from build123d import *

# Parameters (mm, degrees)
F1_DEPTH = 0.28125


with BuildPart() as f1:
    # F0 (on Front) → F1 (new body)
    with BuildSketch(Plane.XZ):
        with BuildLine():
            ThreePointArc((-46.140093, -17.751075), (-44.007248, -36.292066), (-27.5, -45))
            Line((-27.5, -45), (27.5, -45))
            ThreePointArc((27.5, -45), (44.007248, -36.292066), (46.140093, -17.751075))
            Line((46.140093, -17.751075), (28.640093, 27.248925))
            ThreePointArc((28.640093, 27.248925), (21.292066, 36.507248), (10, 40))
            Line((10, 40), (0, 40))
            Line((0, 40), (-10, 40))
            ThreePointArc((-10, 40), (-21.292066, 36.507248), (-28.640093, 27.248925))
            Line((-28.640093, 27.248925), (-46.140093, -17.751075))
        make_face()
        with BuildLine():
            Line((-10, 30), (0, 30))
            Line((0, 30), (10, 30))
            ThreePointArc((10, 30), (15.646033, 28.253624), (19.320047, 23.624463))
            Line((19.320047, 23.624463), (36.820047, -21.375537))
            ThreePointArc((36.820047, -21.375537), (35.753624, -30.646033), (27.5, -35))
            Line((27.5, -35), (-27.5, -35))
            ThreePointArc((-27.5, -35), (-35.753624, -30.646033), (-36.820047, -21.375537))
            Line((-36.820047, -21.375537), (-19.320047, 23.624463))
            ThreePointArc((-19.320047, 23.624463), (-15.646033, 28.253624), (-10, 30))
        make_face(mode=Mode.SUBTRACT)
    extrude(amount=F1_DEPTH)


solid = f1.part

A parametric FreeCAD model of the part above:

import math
import FreeCAD as App
import Part
import Sketcher

V = App.Vector
Q = App.Units.Quantity

doc = App.newDocument("Part")
body = doc.addObject("PartDesign::Body", "Body")

# Sketch on XZ plane
sketch1 = body.newObject("Sketcher::SketchObject", "Sketch")
sketch1.AttachmentSupport = (doc.getObject("XZ_Plane"), [""])
sketch1.MapMode = "FlatFace"
sketch1.addGeometry([
    Part.ArcOfCircle(Part.Circle(V(-27.5, -25, 0), V(0, 0, 1), 20), math.radians(158.749494), math.radians(270)),  # 0
    Part.LineSegment(V(-27.5, -45, 0), V(27.5, -45, 0)),  # 1
    Part.ArcOfCircle(Part.Circle(V(27.5, -25, 0), V(0, 0, 1), 20), math.radians(-90), math.radians(21.250506)),  # 2
    Part.LineSegment(V(46.140093, -17.751075, 0), V(28.640093, 27.248925, 0)),  # 3
    Part.ArcOfCircle(Part.Circle(V(10, 20, 0), V(0, 0, 1), 20), math.radians(21.250504), math.radians(89.999999)),  # 4
    Part.LineSegment(V(10, 40, 0), V(-10, 40, 0)),  # 5
    Part.ArcOfCircle(Part.Circle(V(-10, 20, 0), V(0, 0, 1), 20), math.radians(90.000001), math.radians(158.749496)),  # 6
    Part.LineSegment(V(-28.640093, 27.248925, 0), V(-46.140093, -17.751075, 0)),  # 7
    Part.ArcOfCircle(Part.Circle(V(-9.999999, 19.999998, 0), V(0, 0, 1), 10.000002), math.radians(90.000004), math.radians(158.749485)),  # 8
    Part.LineSegment(V(-10, 30, 0), V(10, 30, 0)),  # 9
    Part.ArcOfCircle(Part.Circle(V(9.999999, 19.999998, 0), V(0, 0, 1), 10.000002), math.radians(21.250515), math.radians(89.999996)),  # 10
    Part.LineSegment(V(19.320047, 23.624463, 0), V(36.820047, -21.375537, 0)),  # 11
    Part.ArcOfCircle(Part.Circle(V(27.5, -24.999999, 0), V(0, 0, 1), 10.000001), math.radians(-89.999997), math.radians(21.250503)),  # 12
    Part.LineSegment(V(27.5, -35, 0), V(-27.5, -35, 0)),  # 13
    Part.ArcOfCircle(Part.Circle(V(-27.5, -24.999999, 0), V(0, 0, 1), 10.000001), math.radians(158.749497), math.radians(269.999997)),  # 14
    Part.LineSegment(V(-36.820047, -21.375537, 0), V(-19.320047, 23.624463, 0)),  # 15
], False)
sketch1.addConstraint([
    Sketcher.Constraint("Tangent", 0, 2, 1, 1),
    Sketcher.Constraint("Tangent", 1, 2, 2, 1),
    Sketcher.Constraint("Tangent", 2, 2, 3, 1),
    Sketcher.Constraint("Tangent", 3, 2, 4, 1),
    Sketcher.Constraint("Tangent", 4, 2, 5, 1),
    Sketcher.Constraint("Tangent", 5, 2, 6, 1),
    Sketcher.Constraint("Tangent", 6, 2, 7, 1),
    Sketcher.Constraint("Tangent", 7, 2, 0, 1),
    Sketcher.Constraint("Tangent", 8, 1, 9, 1),
    Sketcher.Constraint("Tangent", 9, 2, 10, 2),
    Sketcher.Constraint("Tangent", 10, 1, 11, 1),
    Sketcher.Constraint("Tangent", 11, 2, 12, 2),
    Sketcher.Constraint("Tangent", 12, 1, 13, 1),
    Sketcher.Constraint("Tangent", 13, 2, 14, 2),
    Sketcher.Constraint("Tangent", 14, 1, 15, 1),
    Sketcher.Constraint("Tangent", 15, 2, 8, 2),
    Sketcher.Constraint("Horizontal", 1),
    Sketcher.Constraint("Horizontal", 5),
    Sketcher.Constraint("Horizontal", 9),
    Sketcher.Constraint("Horizontal", 13),
    Sketcher.Constraint("Coincident", 8, 3, 6, 3),
    Sketcher.Constraint("Coincident", 10, 3, 4, 3),
    Sketcher.Constraint("Coincident", 12, 3, 2, 3),
    Sketcher.Constraint("Coincident", 14, 3, 0, 3),
    Sketcher.Constraint("Equal", 0, 2),
    Sketcher.Constraint("Equal", 2, 4),
    Sketcher.Constraint("Equal", 4, 6),
    Sketcher.Constraint("Equal", 10, 12),
    Sketcher.Constraint("Symmetric", 3, 2, 6, 2, -2),
    Sketcher.Constraint("Radius", 0, Q("20 mm")),
    Sketcher.Constraint("Radius", 8, Q("10.000002 mm")),
    Sketcher.Constraint("DistanceX", 1, 1, 1, 2, Q("55 mm")),
    Sketcher.Constraint("DistanceX", 5, 2, 5, 1, Q("20 mm")),
    Sketcher.Constraint("DistanceY", 0, 3, -1, 1, Q("25 mm")),
    Sketcher.Constraint("DistanceY", -1, 1, 4, 3, Q("20 mm")),
])
pad1 = body.newObject("PartDesign::Pad", "Pad")
pad1.Profile = sketch1
pad1.Length = 0.28125

doc.recompute()
